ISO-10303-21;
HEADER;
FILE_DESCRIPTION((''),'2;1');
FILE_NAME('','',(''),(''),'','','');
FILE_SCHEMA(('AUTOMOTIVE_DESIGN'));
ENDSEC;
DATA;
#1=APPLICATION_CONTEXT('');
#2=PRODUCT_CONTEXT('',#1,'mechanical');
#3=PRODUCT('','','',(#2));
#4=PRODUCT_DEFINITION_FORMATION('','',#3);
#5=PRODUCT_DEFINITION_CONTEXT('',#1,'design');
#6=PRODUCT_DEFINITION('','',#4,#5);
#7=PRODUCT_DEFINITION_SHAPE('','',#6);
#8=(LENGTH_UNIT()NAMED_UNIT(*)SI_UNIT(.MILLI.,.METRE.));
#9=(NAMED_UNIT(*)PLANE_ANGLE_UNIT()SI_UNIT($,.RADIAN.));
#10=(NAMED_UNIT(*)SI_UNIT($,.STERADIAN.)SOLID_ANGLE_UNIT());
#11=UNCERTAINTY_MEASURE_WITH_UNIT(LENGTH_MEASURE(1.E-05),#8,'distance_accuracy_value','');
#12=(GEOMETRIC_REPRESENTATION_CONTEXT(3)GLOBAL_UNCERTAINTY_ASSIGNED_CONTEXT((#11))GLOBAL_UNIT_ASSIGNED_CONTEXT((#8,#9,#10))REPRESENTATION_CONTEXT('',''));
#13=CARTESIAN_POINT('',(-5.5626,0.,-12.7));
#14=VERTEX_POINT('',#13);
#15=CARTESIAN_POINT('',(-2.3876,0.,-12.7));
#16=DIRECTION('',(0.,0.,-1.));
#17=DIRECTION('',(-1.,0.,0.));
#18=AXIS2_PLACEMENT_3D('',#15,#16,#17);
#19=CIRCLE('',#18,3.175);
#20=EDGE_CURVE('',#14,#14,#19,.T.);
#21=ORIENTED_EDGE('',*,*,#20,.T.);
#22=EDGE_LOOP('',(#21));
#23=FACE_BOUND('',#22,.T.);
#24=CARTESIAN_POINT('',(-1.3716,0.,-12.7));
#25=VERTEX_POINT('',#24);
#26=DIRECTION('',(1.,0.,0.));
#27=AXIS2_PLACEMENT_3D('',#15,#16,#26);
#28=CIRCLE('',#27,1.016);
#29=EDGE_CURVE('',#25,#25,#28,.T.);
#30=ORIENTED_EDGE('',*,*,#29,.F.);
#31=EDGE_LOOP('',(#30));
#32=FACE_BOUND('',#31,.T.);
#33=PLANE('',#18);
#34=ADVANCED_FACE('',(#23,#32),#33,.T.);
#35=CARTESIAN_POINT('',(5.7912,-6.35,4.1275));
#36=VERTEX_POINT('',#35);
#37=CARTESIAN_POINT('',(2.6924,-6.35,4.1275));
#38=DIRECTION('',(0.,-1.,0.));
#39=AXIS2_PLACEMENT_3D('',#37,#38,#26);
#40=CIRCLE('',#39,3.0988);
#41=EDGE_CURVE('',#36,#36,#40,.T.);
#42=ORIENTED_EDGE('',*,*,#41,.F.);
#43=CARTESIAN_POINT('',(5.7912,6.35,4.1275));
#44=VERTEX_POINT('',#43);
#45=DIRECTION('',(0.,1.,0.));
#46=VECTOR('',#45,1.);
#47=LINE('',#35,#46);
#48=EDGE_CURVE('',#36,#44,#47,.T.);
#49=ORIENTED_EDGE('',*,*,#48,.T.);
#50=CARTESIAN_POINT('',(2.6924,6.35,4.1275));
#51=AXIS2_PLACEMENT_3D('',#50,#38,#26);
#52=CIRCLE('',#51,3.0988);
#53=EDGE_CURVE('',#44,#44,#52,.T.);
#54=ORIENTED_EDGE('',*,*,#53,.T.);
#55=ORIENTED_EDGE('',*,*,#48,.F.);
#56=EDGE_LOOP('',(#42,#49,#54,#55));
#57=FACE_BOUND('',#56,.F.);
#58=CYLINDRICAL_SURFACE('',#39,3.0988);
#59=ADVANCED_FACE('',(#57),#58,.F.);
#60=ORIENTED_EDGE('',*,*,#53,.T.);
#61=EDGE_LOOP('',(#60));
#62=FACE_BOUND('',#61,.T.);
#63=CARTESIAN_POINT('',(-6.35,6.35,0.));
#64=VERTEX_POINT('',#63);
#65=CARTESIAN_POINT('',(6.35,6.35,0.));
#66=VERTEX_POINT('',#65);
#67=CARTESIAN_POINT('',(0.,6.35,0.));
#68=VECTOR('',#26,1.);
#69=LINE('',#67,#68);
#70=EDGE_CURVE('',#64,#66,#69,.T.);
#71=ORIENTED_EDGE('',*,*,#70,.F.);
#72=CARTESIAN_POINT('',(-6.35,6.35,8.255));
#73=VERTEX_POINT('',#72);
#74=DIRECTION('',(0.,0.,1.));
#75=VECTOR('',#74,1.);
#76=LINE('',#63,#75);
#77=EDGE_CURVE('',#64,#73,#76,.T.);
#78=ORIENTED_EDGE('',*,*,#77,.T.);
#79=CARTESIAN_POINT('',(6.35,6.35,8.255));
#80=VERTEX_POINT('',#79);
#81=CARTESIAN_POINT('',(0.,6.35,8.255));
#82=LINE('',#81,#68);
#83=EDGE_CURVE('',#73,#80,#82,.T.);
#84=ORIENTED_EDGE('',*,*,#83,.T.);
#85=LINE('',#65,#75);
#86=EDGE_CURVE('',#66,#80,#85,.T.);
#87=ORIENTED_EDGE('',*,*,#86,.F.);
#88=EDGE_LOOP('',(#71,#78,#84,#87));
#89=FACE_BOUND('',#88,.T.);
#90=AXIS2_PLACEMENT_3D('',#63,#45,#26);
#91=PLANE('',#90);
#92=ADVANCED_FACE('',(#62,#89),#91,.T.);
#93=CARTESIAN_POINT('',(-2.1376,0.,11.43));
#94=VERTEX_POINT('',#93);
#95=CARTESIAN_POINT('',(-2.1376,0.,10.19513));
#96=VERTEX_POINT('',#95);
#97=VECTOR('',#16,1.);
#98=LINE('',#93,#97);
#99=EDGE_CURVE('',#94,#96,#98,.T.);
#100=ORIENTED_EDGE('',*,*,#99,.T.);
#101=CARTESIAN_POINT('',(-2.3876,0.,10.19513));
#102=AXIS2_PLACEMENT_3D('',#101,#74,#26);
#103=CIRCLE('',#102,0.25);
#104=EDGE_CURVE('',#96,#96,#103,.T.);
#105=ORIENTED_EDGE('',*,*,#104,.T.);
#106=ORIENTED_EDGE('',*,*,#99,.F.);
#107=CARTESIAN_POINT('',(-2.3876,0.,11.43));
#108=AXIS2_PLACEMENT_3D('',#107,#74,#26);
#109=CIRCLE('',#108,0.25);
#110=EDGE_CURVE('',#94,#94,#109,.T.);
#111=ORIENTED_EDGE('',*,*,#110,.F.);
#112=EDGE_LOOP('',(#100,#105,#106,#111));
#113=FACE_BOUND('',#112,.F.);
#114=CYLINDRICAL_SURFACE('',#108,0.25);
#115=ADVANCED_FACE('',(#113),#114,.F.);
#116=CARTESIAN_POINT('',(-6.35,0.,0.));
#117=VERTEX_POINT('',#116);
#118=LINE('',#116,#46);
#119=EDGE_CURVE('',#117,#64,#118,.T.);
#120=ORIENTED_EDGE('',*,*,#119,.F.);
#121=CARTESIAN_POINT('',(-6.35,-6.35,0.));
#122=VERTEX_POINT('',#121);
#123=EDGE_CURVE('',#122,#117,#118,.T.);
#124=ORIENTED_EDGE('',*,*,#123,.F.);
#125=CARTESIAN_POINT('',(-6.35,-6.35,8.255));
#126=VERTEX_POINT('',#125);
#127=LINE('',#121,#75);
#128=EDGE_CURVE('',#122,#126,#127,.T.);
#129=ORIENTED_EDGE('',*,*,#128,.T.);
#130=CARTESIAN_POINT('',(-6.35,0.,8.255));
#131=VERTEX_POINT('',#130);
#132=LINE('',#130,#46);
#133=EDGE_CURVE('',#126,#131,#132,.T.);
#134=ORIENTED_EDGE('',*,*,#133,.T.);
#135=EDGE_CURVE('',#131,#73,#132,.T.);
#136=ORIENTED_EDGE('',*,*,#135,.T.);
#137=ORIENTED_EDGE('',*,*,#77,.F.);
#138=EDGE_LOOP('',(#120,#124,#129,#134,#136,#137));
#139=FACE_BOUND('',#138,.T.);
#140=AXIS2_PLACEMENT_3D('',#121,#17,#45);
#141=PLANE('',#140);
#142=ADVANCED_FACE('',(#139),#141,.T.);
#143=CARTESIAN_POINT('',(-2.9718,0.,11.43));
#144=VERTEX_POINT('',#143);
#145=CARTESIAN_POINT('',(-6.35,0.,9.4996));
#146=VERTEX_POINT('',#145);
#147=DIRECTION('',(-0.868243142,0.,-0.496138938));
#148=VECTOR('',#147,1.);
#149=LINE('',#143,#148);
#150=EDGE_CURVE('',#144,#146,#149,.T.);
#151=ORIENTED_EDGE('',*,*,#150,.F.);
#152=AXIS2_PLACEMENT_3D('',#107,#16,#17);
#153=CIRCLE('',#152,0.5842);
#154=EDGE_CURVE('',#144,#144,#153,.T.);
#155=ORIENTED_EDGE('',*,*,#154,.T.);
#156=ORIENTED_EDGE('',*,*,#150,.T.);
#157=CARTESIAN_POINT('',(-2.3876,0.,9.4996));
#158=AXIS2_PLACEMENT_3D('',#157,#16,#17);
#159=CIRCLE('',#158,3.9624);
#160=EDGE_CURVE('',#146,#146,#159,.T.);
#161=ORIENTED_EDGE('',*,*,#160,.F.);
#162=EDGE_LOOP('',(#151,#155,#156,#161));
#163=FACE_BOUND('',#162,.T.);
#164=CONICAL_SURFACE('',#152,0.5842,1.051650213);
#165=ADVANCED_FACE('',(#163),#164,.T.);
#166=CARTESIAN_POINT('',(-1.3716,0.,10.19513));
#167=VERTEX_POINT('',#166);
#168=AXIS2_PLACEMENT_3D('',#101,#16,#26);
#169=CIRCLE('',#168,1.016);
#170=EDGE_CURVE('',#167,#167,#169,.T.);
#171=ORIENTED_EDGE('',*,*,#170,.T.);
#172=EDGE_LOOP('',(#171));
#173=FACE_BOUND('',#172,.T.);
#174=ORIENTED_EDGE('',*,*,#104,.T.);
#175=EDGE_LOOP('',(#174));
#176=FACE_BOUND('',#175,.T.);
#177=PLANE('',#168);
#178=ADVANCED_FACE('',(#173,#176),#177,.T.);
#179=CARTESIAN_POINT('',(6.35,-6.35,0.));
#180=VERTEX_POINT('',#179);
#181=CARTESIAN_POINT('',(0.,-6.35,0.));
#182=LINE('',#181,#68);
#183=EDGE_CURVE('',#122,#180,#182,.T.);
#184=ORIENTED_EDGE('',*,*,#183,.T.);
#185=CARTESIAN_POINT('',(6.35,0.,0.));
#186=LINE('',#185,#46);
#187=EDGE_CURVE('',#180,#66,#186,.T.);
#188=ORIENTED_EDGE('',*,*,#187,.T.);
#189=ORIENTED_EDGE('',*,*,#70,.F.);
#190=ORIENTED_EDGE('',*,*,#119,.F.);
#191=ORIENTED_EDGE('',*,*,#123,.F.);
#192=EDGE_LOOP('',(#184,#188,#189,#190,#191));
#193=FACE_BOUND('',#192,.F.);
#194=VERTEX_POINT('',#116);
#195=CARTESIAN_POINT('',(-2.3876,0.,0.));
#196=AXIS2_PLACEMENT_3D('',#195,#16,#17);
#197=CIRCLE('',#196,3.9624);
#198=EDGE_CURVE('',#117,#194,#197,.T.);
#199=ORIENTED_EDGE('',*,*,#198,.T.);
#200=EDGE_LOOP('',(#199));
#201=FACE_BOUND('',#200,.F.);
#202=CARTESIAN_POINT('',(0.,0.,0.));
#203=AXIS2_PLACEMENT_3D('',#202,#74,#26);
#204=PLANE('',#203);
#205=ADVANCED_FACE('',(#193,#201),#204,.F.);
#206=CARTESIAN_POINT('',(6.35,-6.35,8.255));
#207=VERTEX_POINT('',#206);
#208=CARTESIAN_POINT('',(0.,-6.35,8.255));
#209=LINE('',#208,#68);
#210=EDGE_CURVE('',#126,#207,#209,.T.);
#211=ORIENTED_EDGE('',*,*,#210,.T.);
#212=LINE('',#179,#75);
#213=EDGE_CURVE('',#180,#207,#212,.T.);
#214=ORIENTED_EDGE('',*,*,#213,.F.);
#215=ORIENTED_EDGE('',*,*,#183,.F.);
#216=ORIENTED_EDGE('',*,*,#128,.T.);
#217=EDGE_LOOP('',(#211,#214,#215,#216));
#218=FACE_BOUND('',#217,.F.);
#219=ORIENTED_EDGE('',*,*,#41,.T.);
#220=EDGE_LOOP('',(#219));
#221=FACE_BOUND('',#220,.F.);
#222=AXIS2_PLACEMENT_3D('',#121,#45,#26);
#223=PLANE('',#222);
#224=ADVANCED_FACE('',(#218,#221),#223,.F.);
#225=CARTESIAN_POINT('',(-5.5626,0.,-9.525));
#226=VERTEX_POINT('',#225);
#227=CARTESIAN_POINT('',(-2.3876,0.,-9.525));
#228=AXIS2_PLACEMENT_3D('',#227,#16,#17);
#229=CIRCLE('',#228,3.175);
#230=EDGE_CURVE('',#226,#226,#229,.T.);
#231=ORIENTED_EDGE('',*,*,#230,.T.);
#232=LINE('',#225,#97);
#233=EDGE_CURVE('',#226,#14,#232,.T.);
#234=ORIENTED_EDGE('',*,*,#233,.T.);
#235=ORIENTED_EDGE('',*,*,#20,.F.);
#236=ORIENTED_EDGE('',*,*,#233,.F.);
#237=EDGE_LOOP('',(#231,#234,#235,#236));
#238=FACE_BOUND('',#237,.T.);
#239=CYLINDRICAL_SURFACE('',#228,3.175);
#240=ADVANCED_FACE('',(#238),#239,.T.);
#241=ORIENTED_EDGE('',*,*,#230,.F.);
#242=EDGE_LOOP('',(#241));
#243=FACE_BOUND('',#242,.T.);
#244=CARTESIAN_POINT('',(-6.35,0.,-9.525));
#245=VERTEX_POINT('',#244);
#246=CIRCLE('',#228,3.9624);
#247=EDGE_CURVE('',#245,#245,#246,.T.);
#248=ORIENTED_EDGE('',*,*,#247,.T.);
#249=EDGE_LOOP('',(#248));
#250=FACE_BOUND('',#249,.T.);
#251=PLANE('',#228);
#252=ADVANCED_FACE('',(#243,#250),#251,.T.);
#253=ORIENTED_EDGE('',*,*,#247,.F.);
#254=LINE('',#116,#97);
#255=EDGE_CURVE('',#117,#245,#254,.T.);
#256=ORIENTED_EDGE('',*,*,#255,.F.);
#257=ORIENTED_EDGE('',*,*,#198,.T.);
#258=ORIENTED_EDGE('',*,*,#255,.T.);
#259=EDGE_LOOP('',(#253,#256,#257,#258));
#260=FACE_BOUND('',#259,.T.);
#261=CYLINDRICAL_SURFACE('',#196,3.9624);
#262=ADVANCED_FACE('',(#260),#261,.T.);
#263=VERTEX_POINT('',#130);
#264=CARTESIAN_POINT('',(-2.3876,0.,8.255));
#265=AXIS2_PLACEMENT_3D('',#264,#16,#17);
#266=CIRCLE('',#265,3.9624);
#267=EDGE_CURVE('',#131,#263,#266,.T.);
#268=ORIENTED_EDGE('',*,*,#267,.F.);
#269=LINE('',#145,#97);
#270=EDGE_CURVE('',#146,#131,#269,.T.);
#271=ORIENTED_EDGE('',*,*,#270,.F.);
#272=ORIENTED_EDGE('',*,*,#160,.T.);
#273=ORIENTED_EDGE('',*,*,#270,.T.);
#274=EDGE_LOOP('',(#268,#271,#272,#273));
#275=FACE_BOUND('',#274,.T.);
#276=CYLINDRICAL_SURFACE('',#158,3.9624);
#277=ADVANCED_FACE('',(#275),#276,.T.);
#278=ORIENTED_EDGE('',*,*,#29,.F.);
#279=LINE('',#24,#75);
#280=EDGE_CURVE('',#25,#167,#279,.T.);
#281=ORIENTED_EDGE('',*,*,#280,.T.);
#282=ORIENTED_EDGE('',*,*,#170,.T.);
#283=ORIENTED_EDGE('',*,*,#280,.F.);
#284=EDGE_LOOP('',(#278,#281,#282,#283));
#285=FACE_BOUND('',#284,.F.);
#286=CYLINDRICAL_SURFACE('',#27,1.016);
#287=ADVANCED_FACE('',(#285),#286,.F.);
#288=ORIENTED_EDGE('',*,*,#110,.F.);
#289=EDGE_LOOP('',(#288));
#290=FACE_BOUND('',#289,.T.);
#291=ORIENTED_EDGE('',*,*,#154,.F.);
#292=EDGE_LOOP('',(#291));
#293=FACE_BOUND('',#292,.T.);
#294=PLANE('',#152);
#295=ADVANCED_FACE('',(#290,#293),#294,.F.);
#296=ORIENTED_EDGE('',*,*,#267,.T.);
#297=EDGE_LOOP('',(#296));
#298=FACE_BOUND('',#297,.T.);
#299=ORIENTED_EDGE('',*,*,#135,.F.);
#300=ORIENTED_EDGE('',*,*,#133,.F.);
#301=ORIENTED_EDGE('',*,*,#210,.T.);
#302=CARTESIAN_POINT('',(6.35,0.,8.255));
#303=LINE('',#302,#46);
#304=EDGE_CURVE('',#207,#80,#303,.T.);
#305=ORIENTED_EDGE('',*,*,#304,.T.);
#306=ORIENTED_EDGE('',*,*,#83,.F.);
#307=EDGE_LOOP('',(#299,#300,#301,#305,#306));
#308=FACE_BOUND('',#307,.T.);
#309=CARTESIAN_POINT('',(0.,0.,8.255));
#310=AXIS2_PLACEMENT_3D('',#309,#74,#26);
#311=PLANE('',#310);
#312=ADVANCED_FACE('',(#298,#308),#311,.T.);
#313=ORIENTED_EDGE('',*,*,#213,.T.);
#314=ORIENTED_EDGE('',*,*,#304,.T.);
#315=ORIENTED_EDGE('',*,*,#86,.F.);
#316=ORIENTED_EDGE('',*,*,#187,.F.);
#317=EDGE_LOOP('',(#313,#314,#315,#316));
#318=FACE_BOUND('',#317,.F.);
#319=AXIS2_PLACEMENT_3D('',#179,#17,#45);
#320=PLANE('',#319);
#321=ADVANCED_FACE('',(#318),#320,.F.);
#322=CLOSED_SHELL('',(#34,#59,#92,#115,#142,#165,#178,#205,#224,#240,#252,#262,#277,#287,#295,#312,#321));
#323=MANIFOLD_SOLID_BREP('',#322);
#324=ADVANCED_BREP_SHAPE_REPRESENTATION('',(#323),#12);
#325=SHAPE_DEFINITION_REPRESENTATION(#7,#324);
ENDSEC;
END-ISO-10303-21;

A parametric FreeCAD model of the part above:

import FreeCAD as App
import Part
import Sketcher

V = App.Vector
Q = App.Units.Quantity


def add_polygon(sketch, points):
    """Adds a closed chain of lines whose ends are joined by coincident constraints."""
    first, n = sketch.GeometryCount, len(points)
    for a, b in zip(points, points[1:] + points[:1]):
        sketch.addGeometry(Part.LineSegment(App.Vector(*a, 0), App.Vector(*b, 0)), False)
    for i in range(n):
        sketch.addConstraint(Sketcher.Constraint("Coincident", first + i, 2, first + (i + 1) % n, 1))

doc = App.newDocument("Part")
params = doc.addObject("Spreadsheet::Sheet", "Params")
for row, (alias, value) in enumerate([
    ("sketch1_width", "0.5 in"),
    ("pad1_length", "0.325 in"),
    ("sketch2_diameter", "0.244 in"),
    ("sketch3_width", "0.023 in"),
    ("sketch3_width2", "0.156 in"),
    ("sketch3_height", "0.125 in"),
    ("sketch3_height2", "0.049 in"),
    ("revolution_angle", "360 deg"),
    ("sketch4_height", "0.5 in"),
    ("sketch4_width", "0.156 in"),
    ("sketch4_width2", "0.031 in"),
    ("revolution2_angle", "360 deg"),
    ("sketch5_diameter", "0.08 in"),
    ("pocket2_length", "22.89513 mm"),
], start=1):
    params.set(f"A{row}", alias)
    params.set(f"B{row}", "=" + value)
    params.setAlias(f"B{row}", alias)

body = doc.addObject("PartDesign::Body", "Body")

sketch1 = body.newObject("Sketcher::SketchObject", "Sketch")
sketch1.AttachmentSupport = (doc.getObject("XY_Plane"), [""])
sketch1.MapMode = "FlatFace"
add_polygon(sketch1, [(-6, 6), (-6, -6), (6, -6), (6, 6)])
sketch1.addConstraint([
    Sketcher.Constraint("Vertical", 0),
    Sketcher.Constraint("Horizontal", 1),
    Sketcher.Constraint("Vertical", 2),
    Sketcher.Constraint("Horizontal", 3),
    Sketcher.Constraint("Symmetric", 0, 2, 2, 2, -1, 1),
    Sketcher.Constraint("Equal", 3, 0),
    Sketcher.Constraint("DistanceX", 1, 1, 1, 2, Q("0.5 in")),
])
sketch1.setExpression("Constraints[10]", "Params.sketch1_width")
pad1 = body.newObject("PartDesign::Pad", "Pad")
pad1.Profile = sketch1
pad1.setExpression("Length", "Params.pad1_length")

sketch2 = body.newObject("Sketcher::SketchObject", "Sketch001")
sketch2.AttachmentSupport = (doc.getObject("XZ_Plane"), [""])
sketch2.MapMode = "FlatFace"
sketch2.AttachmentOffset = App.Placement(V(0, 0, 0.25 * 25.4), App.Rotation())
sketch2.addGeometry(Part.Circle(V(2.7, 4.1, 0), V(0, 0, 1), 3.1), False)
sketch2.addConstraint([
    Sketcher.Constraint("Diameter", 0, Q("0.244 in")),
    Sketcher.Constraint("DistanceX", -1, 1, 0, 3, Q("0.106 in")),
    Sketcher.Constraint("DistanceY", -1, 1, 0, 3, Q("0.1625 in")),
])
sketch2.setExpression("Constraints[0]", "Params.sketch2_diameter")
pocket1 = body.newObject("PartDesign::Pocket", "Pocket")
pocket1.Profile = sketch2
pocket1.Type = "ThroughAll"

sketch3 = body.newObject("Sketcher::SketchObject", "Sketch002")
sketch3.AttachmentSupport = (doc.getObject("XZ_Plane"), [""])
sketch3.MapMode = "FlatFace"
add_polygon(sketch3, [(-2.4, 8.3), (-2.4, 11.4), (-3, 11.4), (-6.3, 9.5), (-6.3, 8.3)])
sketch3.addGeometry(Part.LineSegment(V(-2.4, 11.4, 0), V(-2.4, 8.3, 0)), True)
sketch3.addConstraint([
    Sketcher.Constraint("Vertical", 0),
    Sketcher.Constraint("Horizontal", 1),
    Sketcher.Constraint("Vertical", 3),
    Sketcher.Constraint("Horizontal", 4),
    Sketcher.Constraint("Vertical", 5),
    Sketcher.Constraint("Coincident", 5, 1, 0, 2),
    Sketcher.Constraint("Horizontal", 3, 2, 5, 2),
    Sketcher.Constraint("DistanceX", 1, 2, 1, 1, Q("0.023 in")),
    Sketcher.Constraint("DistanceX", 4, 1, 4, 2, Q("0.156 in")),
    Sketcher.Constraint("DistanceY", 0, 1, 0, 2, Q("0.125 in")),
    Sketcher.Constraint("DistanceY", 3, 2, 3, 1, Q("0.049 in")),
    Sketcher.Constraint("DistanceY", -1, 1, 0, 2, Q("0.45 in")),
    Sketcher.Constraint("DistanceX", 2, 2, -1, 1, Q("0.25 in")),
])
sketch3.setExpression("Constraints[12]", "Params.sketch3_width")
sketch3.setExpression("Constraints[13]", "Params.sketch3_width2")
sketch3.setExpression("Constraints[14]", "Params.sketch3_height")
sketch3.setExpression("Constraints[15]", "Params.sketch3_height2")
revolution = body.newObject("PartDesign::Revolution", "Revolution")
revolution.Profile = sketch3
revolution.ReferenceAxis = (sketch3, ["Axis0"])
revolution.setExpression("Angle", "Params.revolution_angle")

sketch4 = body.newObject("Sketcher::SketchObject", "Sketch003")
sketch4.AttachmentSupport = (doc.getObject("XZ_Plane"), [""])
sketch4.MapMode = "FlatFace"
add_polygon(sketch4, [(-2.4, -12.7), (-2.4, 0), (-6.3, 0), (-6.3, -9.5), (-5.6, -9.5), (-5.6, -12.7)])
sketch4.addGeometry(Part.LineSegment(V(-2.4, 0, 0), V(-2.4, -12.7, 0)), True)
sketch4.addConstraint([
    Sketcher.Constraint("Vertical", 0),
    Sketcher.Constraint("Horizontal", 1),
    Sketcher.Constraint("Vertical", 2),
    Sketcher.Constraint("Horizontal", 3),
    Sketcher.Constraint("Vertical", 4),
    Sketcher.Constraint("Horizontal", 5),
    Sketcher.Constraint("Vertical", 6),
    Sketcher.Constraint("Coincident", 6, 1, 0, 2),
    Sketcher.Constraint("PointOnObject", 0, 2, -1),
    Sketcher.Constraint("Horizontal", 4, 2, 6, 2),
    Sketcher.Constraint("Equal", 5, 4),
    Sketcher.Constraint("DistanceY", 0, 1, 0, 2, Q("0.5 in")),
    Sketcher.Constraint("DistanceX", 1, 2, 1, 1, Q("0.156 in")),
    Sketcher.Constraint("DistanceX", 3, 1, 3, 2, Q("0.031 in")),
    Sketcher.Constraint("DistanceX", 1, 2, -1, 1, Q("0.25 in")),
])
sketch4.setExpression("Constraints[17]", "Params.sketch4_height")
sketch4.setExpression("Constraints[18]", "Params.sketch4_width")
sketch4.setExpression("Constraints[19]", "Params.sketch4_width2")
revolution2 = body.newObject("PartDesign::Revolution", "Revolution001")
revolution2.Profile = sketch4
revolution2.ReferenceAxis = (sketch4, ["Axis0"])
revolution2.setExpression("Angle", "Params.revolution2_angle")

sketch5 = body.newObject("Sketcher::SketchObject", "Sketch004")
sketch5.AttachmentSupport = (doc.getObject("XY_Plane"), [""])
sketch5.MapMode = "FlatFace"
sketch5.AttachmentOffset = App.Placement(V(0, 0, -0.5 * 25.4), App.Rotation())
sketch5.addGeometry(Part.Circle(V(-2.4, 0, 0), V(0, 0, 1), 1), False)
sketch5.addConstraint([
    Sketcher.Constraint("PointOnObject", 0, 3, -1),
    Sketcher.Constraint("Diameter", 0, Q("0.08 in")),
    Sketcher.Constraint("DistanceX", 0, 3, -1, 1, Q("0.094 in")),
])
sketch5.setExpression("Constraints[1]", "Params.sketch5_diameter")
pocket2 = body.newObject("PartDesign::Pocket", "Pocket001")
pocket2.Profile = sketch5
pocket2.setExpression("Length", "Params.pocket2_length")
pocket2.Reversed = True

sketch6 = body.newObject("Sketcher::SketchObject", "Sketch005")
sketch6.AttachmentSupport = (doc.getObject("XY_Plane"), [""])
sketch6.MapMode = "FlatFace"
sketch6.AttachmentOffset = App.Placement(V(0, 0, 0.45 * 25.4), App.Rotation())
sketch6.addGeometry(Part.Circle(V(-2.39, 0, 0), V(0, 0, 1), 0.25), False)
sketch6.addConstraint([
    Sketcher.Constraint("PointOnObject", 0, 3, -1),
    Sketcher.Constraint("Diameter", 0, 0.5),
    Sketcher.Constraint("DistanceX", 0, 3, -1, 1, Q("0.094 in")),
])
pocket3 = body.newObject("PartDesign::Pocket", "Pocket002")
pocket3.Profile = sketch6
pocket3.Type = "ThroughAll"

doc.recompute()
